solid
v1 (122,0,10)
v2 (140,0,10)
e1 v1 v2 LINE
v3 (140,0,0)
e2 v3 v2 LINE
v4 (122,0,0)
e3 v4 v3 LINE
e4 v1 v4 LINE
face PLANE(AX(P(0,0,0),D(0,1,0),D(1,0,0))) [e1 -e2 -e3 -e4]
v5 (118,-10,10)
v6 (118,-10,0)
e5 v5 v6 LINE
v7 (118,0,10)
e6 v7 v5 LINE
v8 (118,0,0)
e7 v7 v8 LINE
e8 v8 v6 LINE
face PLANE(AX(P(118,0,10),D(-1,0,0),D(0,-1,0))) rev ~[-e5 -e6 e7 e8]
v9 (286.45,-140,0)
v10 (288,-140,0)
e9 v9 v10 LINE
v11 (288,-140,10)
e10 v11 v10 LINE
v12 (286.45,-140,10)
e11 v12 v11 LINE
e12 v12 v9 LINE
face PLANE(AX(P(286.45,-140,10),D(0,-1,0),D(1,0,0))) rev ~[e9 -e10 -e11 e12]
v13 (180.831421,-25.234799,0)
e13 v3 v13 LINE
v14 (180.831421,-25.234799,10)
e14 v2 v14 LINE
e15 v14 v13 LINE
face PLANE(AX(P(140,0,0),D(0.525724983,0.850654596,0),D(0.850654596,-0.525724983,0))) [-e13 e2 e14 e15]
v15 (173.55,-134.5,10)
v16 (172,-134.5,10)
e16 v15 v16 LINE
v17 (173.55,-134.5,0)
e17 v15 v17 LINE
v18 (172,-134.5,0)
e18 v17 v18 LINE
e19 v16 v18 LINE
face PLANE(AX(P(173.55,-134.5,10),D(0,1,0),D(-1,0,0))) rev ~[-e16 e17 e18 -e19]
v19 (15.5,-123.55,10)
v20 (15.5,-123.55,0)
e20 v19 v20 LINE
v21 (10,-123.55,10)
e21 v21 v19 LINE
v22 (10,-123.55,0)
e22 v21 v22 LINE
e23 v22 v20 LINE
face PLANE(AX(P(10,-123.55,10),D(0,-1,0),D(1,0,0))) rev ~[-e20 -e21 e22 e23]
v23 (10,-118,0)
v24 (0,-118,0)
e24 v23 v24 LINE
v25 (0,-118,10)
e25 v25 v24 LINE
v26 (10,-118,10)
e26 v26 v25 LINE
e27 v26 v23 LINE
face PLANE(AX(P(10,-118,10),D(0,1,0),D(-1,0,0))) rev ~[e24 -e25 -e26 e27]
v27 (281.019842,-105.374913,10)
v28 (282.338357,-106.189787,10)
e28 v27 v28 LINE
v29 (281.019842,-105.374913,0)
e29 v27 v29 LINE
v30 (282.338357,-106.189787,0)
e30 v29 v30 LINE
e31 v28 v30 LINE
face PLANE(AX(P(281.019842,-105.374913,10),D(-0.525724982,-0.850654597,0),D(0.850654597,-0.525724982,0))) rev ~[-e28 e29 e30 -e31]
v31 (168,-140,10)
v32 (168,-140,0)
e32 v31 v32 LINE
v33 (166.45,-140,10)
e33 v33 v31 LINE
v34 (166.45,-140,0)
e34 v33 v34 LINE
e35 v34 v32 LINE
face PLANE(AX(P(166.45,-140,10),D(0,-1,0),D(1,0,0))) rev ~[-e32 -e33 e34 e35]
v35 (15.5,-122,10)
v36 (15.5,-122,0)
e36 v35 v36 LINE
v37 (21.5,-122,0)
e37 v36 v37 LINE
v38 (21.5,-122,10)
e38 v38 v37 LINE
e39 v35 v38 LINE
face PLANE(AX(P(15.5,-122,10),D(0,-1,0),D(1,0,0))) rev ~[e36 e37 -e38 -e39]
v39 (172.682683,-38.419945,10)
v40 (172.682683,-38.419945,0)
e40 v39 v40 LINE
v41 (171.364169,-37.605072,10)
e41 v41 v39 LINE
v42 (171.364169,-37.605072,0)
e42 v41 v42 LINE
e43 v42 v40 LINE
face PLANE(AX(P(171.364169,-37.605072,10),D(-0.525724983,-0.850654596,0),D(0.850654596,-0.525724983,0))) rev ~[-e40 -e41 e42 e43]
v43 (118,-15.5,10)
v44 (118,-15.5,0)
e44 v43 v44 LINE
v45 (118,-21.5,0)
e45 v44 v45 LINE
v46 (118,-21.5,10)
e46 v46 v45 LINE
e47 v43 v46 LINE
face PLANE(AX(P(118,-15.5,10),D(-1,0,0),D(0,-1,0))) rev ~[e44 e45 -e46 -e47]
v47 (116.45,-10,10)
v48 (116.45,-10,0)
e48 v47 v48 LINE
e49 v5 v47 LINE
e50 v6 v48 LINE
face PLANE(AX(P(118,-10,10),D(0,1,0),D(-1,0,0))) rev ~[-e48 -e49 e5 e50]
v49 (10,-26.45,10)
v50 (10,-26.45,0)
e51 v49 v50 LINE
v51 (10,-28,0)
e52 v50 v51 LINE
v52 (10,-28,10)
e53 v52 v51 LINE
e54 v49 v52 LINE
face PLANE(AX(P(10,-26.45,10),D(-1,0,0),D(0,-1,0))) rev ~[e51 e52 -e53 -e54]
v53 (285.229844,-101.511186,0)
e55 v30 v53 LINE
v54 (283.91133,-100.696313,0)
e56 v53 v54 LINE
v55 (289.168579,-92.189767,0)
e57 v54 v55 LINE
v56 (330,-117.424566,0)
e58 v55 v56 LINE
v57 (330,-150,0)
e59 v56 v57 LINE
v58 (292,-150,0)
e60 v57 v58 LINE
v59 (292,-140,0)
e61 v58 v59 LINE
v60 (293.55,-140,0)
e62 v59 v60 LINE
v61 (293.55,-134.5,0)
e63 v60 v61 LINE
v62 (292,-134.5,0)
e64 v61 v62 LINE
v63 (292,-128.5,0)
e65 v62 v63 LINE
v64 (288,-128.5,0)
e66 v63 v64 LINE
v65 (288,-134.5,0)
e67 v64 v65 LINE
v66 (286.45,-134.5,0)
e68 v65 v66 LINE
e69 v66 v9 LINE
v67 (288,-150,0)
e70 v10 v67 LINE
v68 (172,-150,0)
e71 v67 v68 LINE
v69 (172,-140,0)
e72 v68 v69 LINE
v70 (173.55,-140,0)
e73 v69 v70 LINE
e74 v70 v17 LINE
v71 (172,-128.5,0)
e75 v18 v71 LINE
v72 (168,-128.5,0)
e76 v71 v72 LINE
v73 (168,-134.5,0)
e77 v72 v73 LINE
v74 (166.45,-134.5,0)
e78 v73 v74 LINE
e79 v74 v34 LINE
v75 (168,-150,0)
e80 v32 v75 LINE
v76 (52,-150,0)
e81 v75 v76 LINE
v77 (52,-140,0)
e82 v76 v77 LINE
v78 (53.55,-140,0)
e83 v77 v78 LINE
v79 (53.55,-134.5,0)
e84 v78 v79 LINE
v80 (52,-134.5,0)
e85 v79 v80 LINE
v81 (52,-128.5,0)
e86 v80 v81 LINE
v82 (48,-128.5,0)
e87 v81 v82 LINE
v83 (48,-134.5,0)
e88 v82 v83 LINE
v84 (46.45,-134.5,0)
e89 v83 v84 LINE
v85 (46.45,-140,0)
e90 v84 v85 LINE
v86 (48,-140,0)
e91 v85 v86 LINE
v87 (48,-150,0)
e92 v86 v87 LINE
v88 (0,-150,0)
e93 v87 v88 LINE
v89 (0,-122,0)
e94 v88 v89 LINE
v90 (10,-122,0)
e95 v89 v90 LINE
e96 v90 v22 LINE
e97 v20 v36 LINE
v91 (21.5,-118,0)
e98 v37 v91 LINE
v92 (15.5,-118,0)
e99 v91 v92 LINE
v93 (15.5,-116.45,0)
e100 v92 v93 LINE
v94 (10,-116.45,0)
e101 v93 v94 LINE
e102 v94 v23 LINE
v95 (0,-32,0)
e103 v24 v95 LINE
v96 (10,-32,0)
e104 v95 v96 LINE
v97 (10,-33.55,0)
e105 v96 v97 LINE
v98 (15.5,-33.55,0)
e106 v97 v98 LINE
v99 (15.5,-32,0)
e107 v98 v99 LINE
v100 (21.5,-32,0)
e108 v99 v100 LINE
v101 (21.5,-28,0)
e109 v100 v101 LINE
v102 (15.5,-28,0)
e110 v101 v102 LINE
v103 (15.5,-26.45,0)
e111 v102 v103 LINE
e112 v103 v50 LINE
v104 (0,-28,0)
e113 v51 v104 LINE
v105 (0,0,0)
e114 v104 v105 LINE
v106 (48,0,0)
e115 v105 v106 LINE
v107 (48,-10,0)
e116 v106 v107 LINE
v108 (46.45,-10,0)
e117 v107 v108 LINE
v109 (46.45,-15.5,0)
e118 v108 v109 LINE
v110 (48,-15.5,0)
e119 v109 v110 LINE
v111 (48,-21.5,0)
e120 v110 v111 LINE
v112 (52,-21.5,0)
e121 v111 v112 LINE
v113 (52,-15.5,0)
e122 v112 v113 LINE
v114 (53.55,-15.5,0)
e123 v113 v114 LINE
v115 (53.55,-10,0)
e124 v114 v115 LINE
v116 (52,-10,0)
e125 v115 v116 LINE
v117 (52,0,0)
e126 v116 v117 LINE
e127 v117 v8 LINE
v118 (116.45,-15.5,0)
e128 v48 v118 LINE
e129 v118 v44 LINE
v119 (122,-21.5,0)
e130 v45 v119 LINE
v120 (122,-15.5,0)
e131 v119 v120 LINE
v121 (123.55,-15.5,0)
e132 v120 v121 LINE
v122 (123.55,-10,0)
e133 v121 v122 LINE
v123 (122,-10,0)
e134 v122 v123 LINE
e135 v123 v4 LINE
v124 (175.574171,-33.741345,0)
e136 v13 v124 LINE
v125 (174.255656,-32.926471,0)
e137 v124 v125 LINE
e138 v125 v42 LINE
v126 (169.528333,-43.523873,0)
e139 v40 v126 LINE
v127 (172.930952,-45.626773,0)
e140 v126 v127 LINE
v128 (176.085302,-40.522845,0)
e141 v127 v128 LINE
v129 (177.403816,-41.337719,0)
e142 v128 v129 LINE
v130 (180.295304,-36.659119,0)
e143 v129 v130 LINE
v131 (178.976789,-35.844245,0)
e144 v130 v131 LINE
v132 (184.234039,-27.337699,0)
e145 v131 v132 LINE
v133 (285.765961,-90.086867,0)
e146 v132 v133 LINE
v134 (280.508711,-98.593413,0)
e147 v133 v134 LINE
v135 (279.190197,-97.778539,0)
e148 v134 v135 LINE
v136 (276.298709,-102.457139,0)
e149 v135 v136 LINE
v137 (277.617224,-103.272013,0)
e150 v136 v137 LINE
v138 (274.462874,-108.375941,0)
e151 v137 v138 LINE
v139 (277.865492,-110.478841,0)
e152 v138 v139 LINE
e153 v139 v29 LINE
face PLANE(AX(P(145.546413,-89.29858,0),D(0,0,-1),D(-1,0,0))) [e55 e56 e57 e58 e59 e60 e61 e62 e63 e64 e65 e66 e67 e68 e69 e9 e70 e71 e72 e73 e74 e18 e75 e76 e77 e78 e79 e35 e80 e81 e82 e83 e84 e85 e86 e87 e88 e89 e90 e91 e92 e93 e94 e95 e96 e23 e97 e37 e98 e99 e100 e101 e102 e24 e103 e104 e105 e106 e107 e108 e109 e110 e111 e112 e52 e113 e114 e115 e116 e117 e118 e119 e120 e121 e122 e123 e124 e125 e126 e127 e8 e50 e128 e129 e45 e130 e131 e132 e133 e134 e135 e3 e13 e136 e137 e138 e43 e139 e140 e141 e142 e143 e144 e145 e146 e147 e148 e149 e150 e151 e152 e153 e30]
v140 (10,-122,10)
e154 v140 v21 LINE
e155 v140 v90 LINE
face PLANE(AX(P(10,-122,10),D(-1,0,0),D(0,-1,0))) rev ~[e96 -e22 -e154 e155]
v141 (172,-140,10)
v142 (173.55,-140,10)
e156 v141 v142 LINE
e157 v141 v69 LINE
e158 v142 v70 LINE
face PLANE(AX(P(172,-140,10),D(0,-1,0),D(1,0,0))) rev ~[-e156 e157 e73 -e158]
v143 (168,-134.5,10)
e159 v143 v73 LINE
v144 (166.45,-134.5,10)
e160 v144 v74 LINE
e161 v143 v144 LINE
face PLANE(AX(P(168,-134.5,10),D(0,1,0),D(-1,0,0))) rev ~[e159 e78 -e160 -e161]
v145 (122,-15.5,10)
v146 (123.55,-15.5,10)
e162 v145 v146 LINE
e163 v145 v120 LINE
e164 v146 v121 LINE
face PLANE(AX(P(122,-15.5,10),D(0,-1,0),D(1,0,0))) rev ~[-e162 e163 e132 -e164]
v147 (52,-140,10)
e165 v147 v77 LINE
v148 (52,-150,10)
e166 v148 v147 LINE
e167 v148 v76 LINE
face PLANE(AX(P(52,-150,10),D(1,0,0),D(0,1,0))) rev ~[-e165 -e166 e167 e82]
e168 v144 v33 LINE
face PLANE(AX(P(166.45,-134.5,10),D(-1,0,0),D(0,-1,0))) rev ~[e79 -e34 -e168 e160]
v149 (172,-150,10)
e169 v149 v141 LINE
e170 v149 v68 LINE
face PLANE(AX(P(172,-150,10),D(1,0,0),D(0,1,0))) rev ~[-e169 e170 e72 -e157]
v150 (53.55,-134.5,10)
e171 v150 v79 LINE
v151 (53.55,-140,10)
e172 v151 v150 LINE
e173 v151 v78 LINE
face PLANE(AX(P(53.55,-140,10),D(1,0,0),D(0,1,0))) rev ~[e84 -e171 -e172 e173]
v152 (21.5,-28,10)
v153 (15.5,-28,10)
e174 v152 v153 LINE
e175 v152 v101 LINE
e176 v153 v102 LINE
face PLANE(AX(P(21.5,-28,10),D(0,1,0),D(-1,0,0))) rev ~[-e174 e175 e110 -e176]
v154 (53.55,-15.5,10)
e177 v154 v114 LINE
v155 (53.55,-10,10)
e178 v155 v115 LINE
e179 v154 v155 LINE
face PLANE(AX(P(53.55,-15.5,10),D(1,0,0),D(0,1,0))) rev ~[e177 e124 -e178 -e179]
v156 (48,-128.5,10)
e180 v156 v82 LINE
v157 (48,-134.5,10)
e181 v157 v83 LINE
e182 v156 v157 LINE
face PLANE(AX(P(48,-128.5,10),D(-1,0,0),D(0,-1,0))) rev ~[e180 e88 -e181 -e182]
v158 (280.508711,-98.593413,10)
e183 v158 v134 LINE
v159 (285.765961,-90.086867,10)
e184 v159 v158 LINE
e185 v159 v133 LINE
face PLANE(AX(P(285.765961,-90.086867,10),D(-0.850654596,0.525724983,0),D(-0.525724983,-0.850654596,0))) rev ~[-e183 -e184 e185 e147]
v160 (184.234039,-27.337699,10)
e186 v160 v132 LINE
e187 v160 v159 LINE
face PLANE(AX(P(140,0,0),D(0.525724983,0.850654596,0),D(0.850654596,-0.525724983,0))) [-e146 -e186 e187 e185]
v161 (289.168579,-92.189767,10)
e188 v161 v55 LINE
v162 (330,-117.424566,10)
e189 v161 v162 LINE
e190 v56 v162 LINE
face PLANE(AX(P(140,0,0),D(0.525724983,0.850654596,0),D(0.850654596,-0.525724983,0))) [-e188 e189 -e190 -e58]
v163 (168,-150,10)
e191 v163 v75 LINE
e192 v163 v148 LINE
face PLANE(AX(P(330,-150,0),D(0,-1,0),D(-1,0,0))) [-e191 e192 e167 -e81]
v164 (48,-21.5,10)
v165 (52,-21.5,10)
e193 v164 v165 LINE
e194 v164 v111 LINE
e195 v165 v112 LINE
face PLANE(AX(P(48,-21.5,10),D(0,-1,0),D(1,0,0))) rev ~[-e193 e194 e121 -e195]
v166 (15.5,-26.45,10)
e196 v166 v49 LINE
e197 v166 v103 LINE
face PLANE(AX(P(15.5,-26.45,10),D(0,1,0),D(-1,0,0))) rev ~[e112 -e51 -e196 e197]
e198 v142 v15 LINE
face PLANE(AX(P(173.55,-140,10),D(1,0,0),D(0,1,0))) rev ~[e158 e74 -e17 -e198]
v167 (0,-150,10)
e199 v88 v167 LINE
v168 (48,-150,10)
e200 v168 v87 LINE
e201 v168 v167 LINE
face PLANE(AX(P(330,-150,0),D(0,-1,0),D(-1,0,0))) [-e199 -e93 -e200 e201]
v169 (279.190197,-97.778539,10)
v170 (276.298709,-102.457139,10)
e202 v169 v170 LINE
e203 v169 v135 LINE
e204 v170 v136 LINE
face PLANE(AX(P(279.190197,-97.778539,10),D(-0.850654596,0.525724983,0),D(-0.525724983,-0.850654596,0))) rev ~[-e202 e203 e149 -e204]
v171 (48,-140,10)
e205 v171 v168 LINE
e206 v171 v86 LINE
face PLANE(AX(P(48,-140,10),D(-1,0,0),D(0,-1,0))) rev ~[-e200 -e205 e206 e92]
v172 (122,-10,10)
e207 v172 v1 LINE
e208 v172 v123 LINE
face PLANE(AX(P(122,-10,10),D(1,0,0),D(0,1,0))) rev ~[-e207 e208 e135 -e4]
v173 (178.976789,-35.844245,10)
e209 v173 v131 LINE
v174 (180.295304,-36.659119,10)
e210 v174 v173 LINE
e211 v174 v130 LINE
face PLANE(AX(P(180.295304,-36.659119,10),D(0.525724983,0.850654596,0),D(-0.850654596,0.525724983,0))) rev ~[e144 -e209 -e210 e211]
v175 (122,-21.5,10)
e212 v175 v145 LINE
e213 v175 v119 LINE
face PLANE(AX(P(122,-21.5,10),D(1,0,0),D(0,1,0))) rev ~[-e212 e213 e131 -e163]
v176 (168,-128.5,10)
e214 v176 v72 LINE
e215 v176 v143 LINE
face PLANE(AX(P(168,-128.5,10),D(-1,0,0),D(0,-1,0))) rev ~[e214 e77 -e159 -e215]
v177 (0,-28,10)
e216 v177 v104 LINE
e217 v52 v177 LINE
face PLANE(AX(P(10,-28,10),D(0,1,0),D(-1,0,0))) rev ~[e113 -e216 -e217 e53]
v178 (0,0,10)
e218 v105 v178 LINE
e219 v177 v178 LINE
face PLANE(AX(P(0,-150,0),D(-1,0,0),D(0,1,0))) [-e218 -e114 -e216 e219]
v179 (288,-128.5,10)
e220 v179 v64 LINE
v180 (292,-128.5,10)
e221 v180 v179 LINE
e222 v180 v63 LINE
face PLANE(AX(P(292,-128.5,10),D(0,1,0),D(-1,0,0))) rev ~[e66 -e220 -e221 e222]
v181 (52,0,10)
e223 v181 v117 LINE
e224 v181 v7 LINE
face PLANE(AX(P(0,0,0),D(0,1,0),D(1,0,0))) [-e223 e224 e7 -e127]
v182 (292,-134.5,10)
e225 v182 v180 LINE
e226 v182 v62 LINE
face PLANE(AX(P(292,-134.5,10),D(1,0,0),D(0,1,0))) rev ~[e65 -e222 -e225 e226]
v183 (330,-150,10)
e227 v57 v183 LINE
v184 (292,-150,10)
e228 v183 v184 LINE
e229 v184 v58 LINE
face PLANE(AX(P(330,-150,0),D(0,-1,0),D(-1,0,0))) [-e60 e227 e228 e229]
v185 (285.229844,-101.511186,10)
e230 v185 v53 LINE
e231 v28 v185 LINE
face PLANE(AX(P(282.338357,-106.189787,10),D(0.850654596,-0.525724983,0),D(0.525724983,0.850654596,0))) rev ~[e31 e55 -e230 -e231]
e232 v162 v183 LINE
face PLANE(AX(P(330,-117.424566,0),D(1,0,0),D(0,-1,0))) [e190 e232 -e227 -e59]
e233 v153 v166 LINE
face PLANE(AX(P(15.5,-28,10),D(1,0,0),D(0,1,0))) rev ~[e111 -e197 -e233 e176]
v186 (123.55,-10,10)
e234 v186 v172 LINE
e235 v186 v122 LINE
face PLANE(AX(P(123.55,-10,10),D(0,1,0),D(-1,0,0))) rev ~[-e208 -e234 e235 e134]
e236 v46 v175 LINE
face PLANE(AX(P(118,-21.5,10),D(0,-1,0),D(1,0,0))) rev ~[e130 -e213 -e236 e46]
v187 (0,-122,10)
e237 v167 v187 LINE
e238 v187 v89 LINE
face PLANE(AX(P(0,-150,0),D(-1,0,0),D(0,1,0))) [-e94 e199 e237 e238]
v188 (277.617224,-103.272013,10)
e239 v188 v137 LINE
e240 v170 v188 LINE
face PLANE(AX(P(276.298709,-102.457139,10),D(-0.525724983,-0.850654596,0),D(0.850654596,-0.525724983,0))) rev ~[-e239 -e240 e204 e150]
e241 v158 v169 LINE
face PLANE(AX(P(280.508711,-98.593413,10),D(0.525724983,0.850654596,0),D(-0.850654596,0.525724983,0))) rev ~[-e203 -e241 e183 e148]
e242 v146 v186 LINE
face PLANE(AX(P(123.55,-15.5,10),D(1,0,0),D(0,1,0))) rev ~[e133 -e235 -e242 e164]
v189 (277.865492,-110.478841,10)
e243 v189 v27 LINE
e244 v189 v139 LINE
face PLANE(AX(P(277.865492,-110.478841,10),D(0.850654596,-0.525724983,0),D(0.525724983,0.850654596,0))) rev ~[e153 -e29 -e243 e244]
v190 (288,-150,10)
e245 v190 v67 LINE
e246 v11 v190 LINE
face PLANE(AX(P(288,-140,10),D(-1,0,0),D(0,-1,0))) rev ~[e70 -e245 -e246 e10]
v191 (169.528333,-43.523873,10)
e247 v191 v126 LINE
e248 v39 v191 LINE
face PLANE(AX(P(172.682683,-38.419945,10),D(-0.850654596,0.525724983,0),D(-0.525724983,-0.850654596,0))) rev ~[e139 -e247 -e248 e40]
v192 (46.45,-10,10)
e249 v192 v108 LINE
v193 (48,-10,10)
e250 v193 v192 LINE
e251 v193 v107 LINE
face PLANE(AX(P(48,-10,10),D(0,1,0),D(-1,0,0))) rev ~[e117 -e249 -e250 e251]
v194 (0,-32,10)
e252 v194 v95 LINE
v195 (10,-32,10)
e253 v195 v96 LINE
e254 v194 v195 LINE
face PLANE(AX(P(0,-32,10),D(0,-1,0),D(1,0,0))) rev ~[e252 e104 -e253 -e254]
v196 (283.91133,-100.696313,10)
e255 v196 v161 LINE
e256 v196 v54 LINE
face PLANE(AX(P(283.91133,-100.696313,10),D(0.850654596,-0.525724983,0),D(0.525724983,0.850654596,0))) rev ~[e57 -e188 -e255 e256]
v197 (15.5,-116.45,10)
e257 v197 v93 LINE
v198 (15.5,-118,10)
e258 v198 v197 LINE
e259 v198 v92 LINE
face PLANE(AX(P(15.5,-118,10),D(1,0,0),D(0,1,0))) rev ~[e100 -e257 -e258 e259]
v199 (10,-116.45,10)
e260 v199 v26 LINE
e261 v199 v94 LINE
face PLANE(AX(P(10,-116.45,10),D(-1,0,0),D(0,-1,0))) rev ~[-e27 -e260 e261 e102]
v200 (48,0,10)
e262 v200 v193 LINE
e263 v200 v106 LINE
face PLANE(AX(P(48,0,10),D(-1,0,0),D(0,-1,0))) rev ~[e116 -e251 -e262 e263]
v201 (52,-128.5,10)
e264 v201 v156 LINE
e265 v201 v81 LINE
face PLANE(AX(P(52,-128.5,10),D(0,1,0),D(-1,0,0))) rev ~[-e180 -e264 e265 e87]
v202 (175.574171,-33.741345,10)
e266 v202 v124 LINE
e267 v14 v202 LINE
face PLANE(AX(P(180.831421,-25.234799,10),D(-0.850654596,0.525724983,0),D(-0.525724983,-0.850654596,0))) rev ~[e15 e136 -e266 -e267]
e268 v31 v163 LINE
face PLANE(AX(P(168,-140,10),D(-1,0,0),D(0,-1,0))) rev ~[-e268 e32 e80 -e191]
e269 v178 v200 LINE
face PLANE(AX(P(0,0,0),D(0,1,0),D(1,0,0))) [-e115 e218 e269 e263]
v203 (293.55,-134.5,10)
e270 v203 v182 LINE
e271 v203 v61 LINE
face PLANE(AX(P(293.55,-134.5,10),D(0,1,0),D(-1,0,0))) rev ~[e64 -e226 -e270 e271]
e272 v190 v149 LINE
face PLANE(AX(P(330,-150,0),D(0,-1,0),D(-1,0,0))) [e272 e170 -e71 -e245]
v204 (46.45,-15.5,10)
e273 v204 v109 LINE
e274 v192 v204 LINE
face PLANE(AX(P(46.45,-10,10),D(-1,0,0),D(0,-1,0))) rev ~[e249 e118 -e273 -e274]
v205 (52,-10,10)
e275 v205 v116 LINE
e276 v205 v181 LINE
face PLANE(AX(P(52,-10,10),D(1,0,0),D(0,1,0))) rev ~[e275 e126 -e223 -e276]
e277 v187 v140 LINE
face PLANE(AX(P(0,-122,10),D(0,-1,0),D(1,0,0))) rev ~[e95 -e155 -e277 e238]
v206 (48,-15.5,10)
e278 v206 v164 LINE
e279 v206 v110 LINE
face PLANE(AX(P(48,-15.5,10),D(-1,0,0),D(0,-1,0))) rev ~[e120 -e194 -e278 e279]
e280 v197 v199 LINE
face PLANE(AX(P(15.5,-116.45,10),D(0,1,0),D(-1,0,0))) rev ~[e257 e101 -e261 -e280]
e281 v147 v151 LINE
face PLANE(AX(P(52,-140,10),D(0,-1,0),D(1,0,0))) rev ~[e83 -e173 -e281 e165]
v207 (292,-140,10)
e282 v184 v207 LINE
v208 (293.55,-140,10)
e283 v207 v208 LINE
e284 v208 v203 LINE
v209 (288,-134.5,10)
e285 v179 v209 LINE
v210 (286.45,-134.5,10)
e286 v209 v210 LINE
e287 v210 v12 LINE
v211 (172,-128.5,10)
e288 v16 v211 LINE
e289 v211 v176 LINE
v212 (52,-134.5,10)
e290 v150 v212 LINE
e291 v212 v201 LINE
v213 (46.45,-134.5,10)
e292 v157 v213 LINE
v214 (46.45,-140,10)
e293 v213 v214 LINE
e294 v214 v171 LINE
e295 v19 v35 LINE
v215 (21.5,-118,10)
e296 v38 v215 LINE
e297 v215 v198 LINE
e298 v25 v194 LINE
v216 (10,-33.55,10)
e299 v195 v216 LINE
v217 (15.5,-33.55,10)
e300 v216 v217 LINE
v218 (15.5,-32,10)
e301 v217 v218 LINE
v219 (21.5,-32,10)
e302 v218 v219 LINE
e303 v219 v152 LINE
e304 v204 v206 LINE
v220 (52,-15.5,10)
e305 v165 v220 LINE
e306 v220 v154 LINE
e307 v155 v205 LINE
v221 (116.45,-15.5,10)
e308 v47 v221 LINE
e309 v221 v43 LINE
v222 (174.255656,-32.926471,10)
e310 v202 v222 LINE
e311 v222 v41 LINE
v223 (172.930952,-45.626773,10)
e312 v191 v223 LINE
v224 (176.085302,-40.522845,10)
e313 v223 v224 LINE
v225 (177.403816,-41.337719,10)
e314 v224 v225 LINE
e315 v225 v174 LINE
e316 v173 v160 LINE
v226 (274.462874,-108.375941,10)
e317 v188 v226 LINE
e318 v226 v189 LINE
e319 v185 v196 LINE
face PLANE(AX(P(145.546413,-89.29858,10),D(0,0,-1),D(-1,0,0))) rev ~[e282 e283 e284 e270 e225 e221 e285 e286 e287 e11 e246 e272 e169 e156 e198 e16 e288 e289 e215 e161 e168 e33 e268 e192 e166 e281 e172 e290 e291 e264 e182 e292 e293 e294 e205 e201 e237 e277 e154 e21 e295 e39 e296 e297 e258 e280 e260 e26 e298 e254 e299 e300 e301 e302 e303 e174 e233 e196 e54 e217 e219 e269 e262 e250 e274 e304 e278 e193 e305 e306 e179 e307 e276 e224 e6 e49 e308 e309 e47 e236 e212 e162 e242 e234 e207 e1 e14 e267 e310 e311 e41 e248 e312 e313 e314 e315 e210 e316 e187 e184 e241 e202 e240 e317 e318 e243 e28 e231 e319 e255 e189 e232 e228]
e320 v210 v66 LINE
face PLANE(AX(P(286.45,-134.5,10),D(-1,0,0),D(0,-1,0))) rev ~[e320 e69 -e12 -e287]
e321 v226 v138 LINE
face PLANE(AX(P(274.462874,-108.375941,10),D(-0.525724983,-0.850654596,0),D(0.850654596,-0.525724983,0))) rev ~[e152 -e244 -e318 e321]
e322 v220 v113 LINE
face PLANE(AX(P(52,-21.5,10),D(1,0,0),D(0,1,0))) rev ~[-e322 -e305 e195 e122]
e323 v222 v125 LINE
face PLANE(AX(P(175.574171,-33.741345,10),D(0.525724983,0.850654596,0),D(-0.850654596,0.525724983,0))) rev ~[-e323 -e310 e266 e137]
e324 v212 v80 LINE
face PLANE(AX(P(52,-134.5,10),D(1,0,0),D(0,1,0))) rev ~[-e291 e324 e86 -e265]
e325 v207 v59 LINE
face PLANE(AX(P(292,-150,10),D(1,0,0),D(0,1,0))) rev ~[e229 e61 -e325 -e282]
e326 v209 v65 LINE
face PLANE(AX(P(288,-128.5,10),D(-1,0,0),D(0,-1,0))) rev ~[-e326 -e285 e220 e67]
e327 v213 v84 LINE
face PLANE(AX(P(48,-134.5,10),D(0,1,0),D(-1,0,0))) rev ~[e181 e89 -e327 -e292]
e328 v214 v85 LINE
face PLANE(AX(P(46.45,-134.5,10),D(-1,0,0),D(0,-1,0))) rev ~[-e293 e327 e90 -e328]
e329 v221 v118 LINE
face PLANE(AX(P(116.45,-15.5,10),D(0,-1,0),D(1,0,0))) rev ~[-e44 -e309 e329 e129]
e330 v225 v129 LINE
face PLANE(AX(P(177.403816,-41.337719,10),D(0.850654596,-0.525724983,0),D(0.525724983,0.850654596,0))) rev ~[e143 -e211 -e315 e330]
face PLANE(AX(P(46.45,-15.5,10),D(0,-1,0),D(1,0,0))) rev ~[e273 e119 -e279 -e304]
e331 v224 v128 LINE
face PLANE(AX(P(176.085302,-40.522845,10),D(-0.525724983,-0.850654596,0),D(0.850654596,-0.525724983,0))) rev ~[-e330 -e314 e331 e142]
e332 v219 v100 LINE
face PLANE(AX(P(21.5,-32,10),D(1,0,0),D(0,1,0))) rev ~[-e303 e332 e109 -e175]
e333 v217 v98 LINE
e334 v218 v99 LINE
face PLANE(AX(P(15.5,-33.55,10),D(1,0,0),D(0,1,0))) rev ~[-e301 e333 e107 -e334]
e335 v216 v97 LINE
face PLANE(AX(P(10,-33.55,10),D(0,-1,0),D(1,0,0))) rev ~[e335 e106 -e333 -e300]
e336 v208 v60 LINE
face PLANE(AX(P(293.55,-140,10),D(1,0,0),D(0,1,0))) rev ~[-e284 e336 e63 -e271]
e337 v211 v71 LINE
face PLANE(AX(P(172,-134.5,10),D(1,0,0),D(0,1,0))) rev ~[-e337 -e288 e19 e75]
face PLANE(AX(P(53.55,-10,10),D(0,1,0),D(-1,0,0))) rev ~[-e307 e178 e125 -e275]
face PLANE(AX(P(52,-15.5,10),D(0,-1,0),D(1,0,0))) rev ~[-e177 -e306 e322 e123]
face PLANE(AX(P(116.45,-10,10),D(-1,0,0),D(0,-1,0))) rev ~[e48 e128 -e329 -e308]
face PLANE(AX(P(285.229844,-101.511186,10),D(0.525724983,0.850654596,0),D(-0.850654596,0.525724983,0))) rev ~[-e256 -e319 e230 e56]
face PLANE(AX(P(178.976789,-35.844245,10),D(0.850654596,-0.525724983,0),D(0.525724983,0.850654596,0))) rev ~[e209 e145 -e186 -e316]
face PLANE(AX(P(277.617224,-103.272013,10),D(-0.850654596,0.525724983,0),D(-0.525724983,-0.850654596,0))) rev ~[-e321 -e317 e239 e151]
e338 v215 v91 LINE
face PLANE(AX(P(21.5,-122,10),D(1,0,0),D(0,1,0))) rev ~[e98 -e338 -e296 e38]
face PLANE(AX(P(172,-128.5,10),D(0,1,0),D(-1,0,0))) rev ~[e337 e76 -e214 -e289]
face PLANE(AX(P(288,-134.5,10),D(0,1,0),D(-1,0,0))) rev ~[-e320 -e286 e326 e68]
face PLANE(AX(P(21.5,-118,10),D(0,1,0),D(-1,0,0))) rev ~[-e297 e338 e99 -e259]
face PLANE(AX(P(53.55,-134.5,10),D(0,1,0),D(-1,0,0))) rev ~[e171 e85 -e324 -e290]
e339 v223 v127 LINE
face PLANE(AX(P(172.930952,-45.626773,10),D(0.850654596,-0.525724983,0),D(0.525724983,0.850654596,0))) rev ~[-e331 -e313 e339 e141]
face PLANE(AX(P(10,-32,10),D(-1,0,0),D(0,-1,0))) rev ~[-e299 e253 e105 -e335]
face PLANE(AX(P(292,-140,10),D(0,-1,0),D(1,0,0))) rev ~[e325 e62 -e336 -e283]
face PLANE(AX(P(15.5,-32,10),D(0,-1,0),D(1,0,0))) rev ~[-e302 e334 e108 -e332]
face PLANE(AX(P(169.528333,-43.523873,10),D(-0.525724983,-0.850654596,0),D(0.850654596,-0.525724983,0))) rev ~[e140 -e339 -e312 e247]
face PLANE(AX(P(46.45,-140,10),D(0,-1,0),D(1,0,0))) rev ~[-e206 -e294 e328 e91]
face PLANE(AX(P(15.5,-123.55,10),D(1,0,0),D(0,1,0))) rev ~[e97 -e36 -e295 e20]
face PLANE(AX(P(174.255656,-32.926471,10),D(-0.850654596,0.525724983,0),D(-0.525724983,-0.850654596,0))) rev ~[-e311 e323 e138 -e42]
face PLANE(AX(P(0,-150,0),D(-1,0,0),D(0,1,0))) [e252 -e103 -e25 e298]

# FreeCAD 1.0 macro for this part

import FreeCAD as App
import Part
import Sketcher
from FreeCAD import Vector

doc = App.newDocument("Part")
body = doc.addObject("PartDesign::Body", "Body")

sketch1 = body.newObject("Sketcher::SketchObject", "Sketch")
sketch1.AttachmentSupport = (doc.getObject("XY_Plane"), [""])
sketch1.MapMode = "FlatFace"
sketch1.addGeometry([
    Part.LineSegment(Vector(140, 0, 0), Vector(0, 0, 0)),
    Part.LineSegment(Vector(0, 0, 0), Vector(0, -150, 0)),
    Part.LineSegment(Vector(0, -150, 0), Vector(330, -150, 0)),
    Part.LineSegment(Vector(330, -150, 0), Vector(330, -117.424566, 0)),
    Part.LineSegment(Vector(330, -117.424566, 0), Vector(140, 0, 0)),
], False)
sketch1.addConstraint([
    Sketcher.Constraint("Coincident", 0, 2, 1, 1),
    Sketcher.Constraint("Coincident", 1, 2, 2, 1),
    Sketcher.Constraint("Coincident", 2, 2, 3, 1),
    Sketcher.Constraint("Coincident", 3, 2, 4, 1),
    Sketcher.Constraint("Coincident", 4, 2, 0, 1),
    Sketcher.Constraint("Horizontal", 0),
    Sketcher.Constraint("Vertical", 1),
    Sketcher.Constraint("Horizontal", 2),
    Sketcher.Constraint("Vertical", 3),
    Sketcher.Constraint("Coincident", 0, 2, -1, 1),
    Sketcher.Constraint("DistanceX", 0, 2, 0, 1, 140.0),
    Sketcher.Constraint("DistanceX", 2, 1, 2, 2, 330.0),
    Sketcher.Constraint("DistanceY", 1, 2, 1, 1, 150.0),
    Sketcher.Constraint("Distance", 4, 223.357401),
])
pad1 = body.newObject("PartDesign::Pad", "Pad")
pad1.Profile = sketch1
pad1.Length = 10

sketch2 = body.newObject("Sketcher::SketchObject", "Sketch001")
sketch2.AttachmentSupport = (doc.getObject("XY_Plane"), [""])
sketch2.MapMode = "FlatFace"
sketch2.AttachmentOffset = App.Placement(Vector(0, 0, 10), App.Rotation())
sketch2.addGeometry([
    Part.LineSegment(Vector(48, -140, 0), Vector(48, -150, 0)),
    Part.LineSegment(Vector(48, -150, 0), Vector(52, -150, 0)),
    Part.LineSegment(Vector(52, -150, 0), Vector(52, -140, 0)),
    Part.LineSegment(Vector(52, -140, 0), Vector(53.55, -140, 0)),
    Part.LineSegment(Vector(53.55, -140, 0), Vector(53.55, -134.5, 0)),
    Part.LineSegment(Vector(53.55, -134.5, 0), Vector(52, -134.5, 0)),
    Part.LineSegment(Vector(52, -134.5, 0), Vector(52, -128.5, 0)),
    Part.LineSegment(Vector(52, -128.5, 0), Vector(48, -128.5, 0)),
    Part.LineSegment(Vector(48, -128.5, 0), Vector(48, -134.5, 0)),
    Part.LineSegment(Vector(48, -134.5, 0), Vector(46.45, -134.5, 0)),
    Part.LineSegment(Vector(46.45, -134.5, 0), Vector(46.45, -140, 0)),
    Part.LineSegment(Vector(46.45, -140, 0), Vector(48, -140, 0)),
    Part.LineSegment(Vector(168, -140, 0), Vector(168, -150, 0)),
    Part.LineSegment(Vector(168, -150, 0), Vector(172, -150, 0)),
    Part.LineSegment(Vector(172, -150, 0), Vector(172, -140, 0)),
    Part.LineSegment(Vector(172, -140, 0), Vector(173.55, -140, 0)),
    Part.LineSegment(Vector(173.55, -140, 0), Vector(173.55, -134.5, 0)),
    Part.LineSegment(Vector(173.55, -134.5, 0), Vector(172, -134.5, 0)),
    Part.LineSegment(Vector(172, -134.5, 0), Vector(172, -128.5, 0)),
    Part.LineSegment(Vector(172, -128.5, 0), Vector(168, -128.5, 0)),
    Part.LineSegment(Vector(168, -128.5, 0), Vector(168, -134.5, 0)),
    Part.LineSegment(Vector(168, -134.5, 0), Vector(166.45, -134.5, 0)),
    Part.LineSegment(Vector(166.45, -134.5, 0), Vector(166.45, -140, 0)),
    Part.LineSegment(Vector(166.45, -140, 0), Vector(168, -140, 0)),
    Part.LineSegment(Vector(288, -140, 0), Vector(288, -150, 0)),
    Part.LineSegment(Vector(288, -150, 0), Vector(292, -150, 0)),
    Part.LineSegment(Vector(292, -150, 0), Vector(292, -140, 0)),
    Part.LineSegment(Vector(292, -140, 0), Vector(293.55, -140, 0)),
    Part.LineSegment(Vector(293.55, -140, 0), Vector(293.55, -134.5, 0)),
    Part.LineSegment(Vector(293.55, -134.5, 0), Vector(292, -134.5, 0)),
    Part.LineSegment(Vector(292, -134.5, 0), Vector(292, -128.5, 0)),
    Part.LineSegment(Vector(292, -128.5, 0), Vector(288, -128.5, 0)),
    Part.LineSegment(Vector(288, -128.5, 0), Vector(288, -134.5, 0)),
    Part.LineSegment(Vector(288, -134.5, 0), Vector(286.45, -134.5, 0)),
    Part.LineSegment(Vector(286.45, -134.5, 0), Vector(286.45, -140, 0)),
    Part.LineSegment(Vector(286.45, -140, 0), Vector(288, -140, 0)),
    Part.LineSegment(Vector(10, -28, 0), Vector(0, -28, 0)),
    Part.LineSegment(Vector(0, -28, 0), Vector(0, -32, 0)),
    Part.LineSegment(Vector(0, -32, 0), Vector(10, -32, 0)),
    Part.LineSegment(Vector(10, -32, 0), Vector(10, -33.55, 0)),
    Part.LineSegment(Vector(10, -33.55, 0), Vector(15.5, -33.55, 0)),
    Part.LineSegment(Vector(15.5, -33.55, 0), Vector(15.5, -32, 0)),
    Part.LineSegment(Vector(15.5, -32, 0), Vector(21.5, -32, 0)),
    Part.LineSegment(Vector(21.5, -32, 0), Vector(21.5, -28, 0)),
    Part.LineSegment(Vector(21.5, -28, 0), Vector(15.5, -28, 0)),
    Part.LineSegment(Vector(15.5, -28, 0), Vector(15.5, -26.45, 0)),
    Part.LineSegment(Vector(15.5, -26.45, 0), Vector(10, -26.45, 0)),
    Part.LineSegment(Vector(10, -26.45, 0), Vector(10, -28, 0)),
    Part.LineSegment(Vector(10, -118, 0), Vector(0, -118, 0)),
    Part.LineSegment(Vector(0, -118, 0), Vector(0, -122, 0)),
    Part.LineSegment(Vector(0, -122, 0), Vector(10, -122, 0)),
    Part.LineSegment(Vector(10, -122, 0), Vector(10, -123.55, 0)),
    Part.LineSegment(Vector(10, -123.55, 0), Vector(15.5, -123.55, 0)),
    Part.LineSegment(Vector(15.5, -123.55, 0), Vector(15.5, -122, 0)),
    Part.LineSegment(Vector(15.5, -122, 0), Vector(21.5, -122, 0)),
    Part.LineSegment(Vector(21.5, -122, 0), Vector(21.5, -118, 0)),
    Part.LineSegment(Vector(21.5, -118, 0), Vector(15.5, -118, 0)),
    Part.LineSegment(Vector(15.5, -118, 0), Vector(15.5, -116.45, 0)),
    Part.LineSegment(Vector(15.5, -116.45, 0), Vector(10, -116.45, 0)),
    Part.LineSegment(Vector(10, -116.45, 0), Vector(10, -118, 0)),
], False)
sketch2.addConstraint([
    Sketcher.Constraint("Coincident", 0, 2, 1, 1),
    Sketcher.Constraint("Coincident", 1, 2, 2, 1),
    Sketcher.Constraint("Coincident", 2, 2, 3, 1),
    Sketcher.Constraint("Coincident", 3, 2, 4, 1),
    Sketcher.Constraint("Coincident", 4, 2, 5, 1),
    Sketcher.Constraint("Coincident", 5, 2, 6, 1),
    Sketcher.Constraint("Coincident", 6, 2, 7, 1),
    Sketcher.Constraint("Coincident", 7, 2, 8, 1),
    Sketcher.Constraint("Coincident", 8, 2, 9, 1),
    Sketcher.Constraint("Coincident", 9, 2, 10, 1),
    Sketcher.Constraint("Coincident", 10, 2, 11, 1),
    Sketcher.Constraint("Coincident", 11, 2, 0, 1),
    Sketcher.Constraint("Coincident", 12, 2, 13, 1),
    Sketcher.Constraint("Coincident", 13, 2, 14, 1),
    Sketcher.Constraint("Coincident", 14, 2, 15, 1),
    Sketcher.Constraint("Coincident", 15, 2, 16, 1),
    Sketcher.Constraint("Coincident", 16, 2, 17, 1),
    Sketcher.Constraint("Coincident", 17, 2, 18, 1),
    Sketcher.Constraint("Coincident", 18, 2, 19, 1),
    Sketcher.Constraint("Coincident", 19, 2, 20, 1),
    Sketcher.Constraint("Coincident", 20, 2, 21, 1),
    Sketcher.Constraint("Coincident", 21, 2, 22, 1),
    Sketcher.Constraint("Coincident", 22, 2, 23, 1),
    Sketcher.Constraint("Coincident", 23, 2, 12, 1),
    Sketcher.Constraint("Coincident", 24, 2, 25, 1),
    Sketcher.Constraint("Coincident", 25, 2, 26, 1),
    Sketcher.Constraint("Coincident", 26, 2, 27, 1),
    Sketcher.Constraint("Coincident", 27, 2, 28, 1),
    Sketcher.Constraint("Coincident", 28, 2, 29, 1),
    Sketcher.Constraint("Coincident", 29, 2, 30, 1),
    Sketcher.Constraint("Coincident", 30, 2, 31, 1),
    Sketcher.Constraint("Coincident", 31, 2, 32, 1),
    Sketcher.Constraint("Coincident", 32, 2, 33, 1),
    Sketcher.Constraint("Coincident", 33, 2, 34, 1),
    Sketcher.Constraint("Coincident", 34, 2, 35, 1),
    Sketcher.Constraint("Coincident", 35, 2, 24, 1),
    Sketcher.Constraint("Coincident", 36, 2, 37, 1),
    Sketcher.Constraint("Coincident", 37, 2, 38, 1),
    Sketcher.Constraint("Coincident", 38, 2, 39, 1),
    Sketcher.Constraint("Coincident", 39, 2, 40, 1),
    Sketcher.Constraint("Coincident", 40, 2, 41, 1),
    Sketcher.Constraint("Coincident", 41, 2, 42, 1),
    Sketcher.Constraint("Coincident", 42, 2, 43, 1),
    Sketcher.Constraint("Coincident", 43, 2, 44, 1),
    Sketcher.Constraint("Coincident", 44, 2, 45, 1),
    Sketcher.Constraint("Coincident", 45, 2, 46, 1),
    Sketcher.Constraint("Coincident", 46, 2, 47, 1),
    Sketcher.Constraint("Coincident", 47, 2, 36, 1),
    Sketcher.Constraint("Coincident", 48, 2, 49, 1),
    Sketcher.Constraint("Coincident", 49, 2, 50, 1),
    Sketcher.Constraint("Coincident", 50, 2, 51, 1),
    Sketcher.Constraint("Coincident", 51, 2, 52, 1),
    Sketcher.Constraint("Coincident", 52, 2, 53, 1),
    Sketcher.Constraint("Coincident", 53, 2, 54, 1),
    Sketcher.Constraint("Coincident", 54, 2, 55, 1),
    Sketcher.Constraint("Coincident", 55, 2, 56, 1),
    Sketcher.Constraint("Coincident", 56, 2, 57, 1),
    Sketcher.Constraint("Coincident", 57, 2, 58, 1),
    Sketcher.Constraint("Coincident", 58, 2, 59, 1),
    Sketcher.Constraint("Coincident", 59, 2, 48, 1),
    Sketcher.Constraint("Vertical", 0),
    Sketcher.Constraint("Horizontal", 1),
    Sketcher.Constraint("Vertical", 2),
    Sketcher.Constraint("Horizontal", 3),
    Sketcher.Constraint("Vertical", 4),
    Sketcher.Constraint("Horizontal", 5),
    Sketcher.Constraint("Vertical", 6),
    Sketcher.Constraint("Horizontal", 7),
    Sketcher.Constraint("Vertical", 8),
    Sketcher.Constraint("Horizontal", 9),
    Sketcher.Constraint("Vertical", 10),
    Sketcher.Constraint("Horizontal", 11),
    Sketcher.Constraint("Vertical", 12),
    Sketcher.Constraint("Horizontal", 13),
    Sketcher.Constraint("Vertical", 14),
    Sketcher.Constraint("Horizontal", 15),
    Sketcher.Constraint("Vertical", 16),
    Sketcher.Constraint("Horizontal", 17),
    Sketcher.Constraint("Vertical", 18),
    Sketcher.Constraint("Horizontal", 19),
    Sketcher.Constraint("Vertical", 20),
    Sketcher.Constraint("Horizontal", 21),
    Sketcher.Constraint("Vertical", 22),
    Sketcher.Constraint("Horizontal", 23),
    Sketcher.Constraint("Vertical", 24),
    Sketcher.Constraint("Horizontal", 25),
    Sketcher.Constraint("Vertical", 26),
    Sketcher.Constraint("Horizontal", 27),
    Sketcher.Constraint("Vertical", 28),
    Sketcher.Constraint("Horizontal", 29),
    Sketcher.Constraint("Vertical", 30),
    Sketcher.Constraint("Horizontal", 31),
    Sketcher.Constraint("Vertical", 32),
    Sketcher.Constraint("Horizontal", 33),
    Sketcher.Constraint("Vertical", 34),
    Sketcher.Constraint("Horizontal", 35),
    Sketcher.Constraint("Horizontal", 36),
    Sketcher.Constraint("Vertical", 37),
    Sketcher.Constraint("Horizontal", 38),
    Sketcher.Constraint("Vertical", 39),
    Sketcher.Constraint("Horizontal", 40),
    Sketcher.Constraint("Vertical", 41),
    Sketcher.Constraint("Horizontal", 42),
    Sketcher.Constraint("Vertical", 43),
    Sketcher.Constraint("Horizontal", 44),
    Sketcher.Constraint("Vertical", 45),
    Sketcher.Constraint("Horizontal", 46),
    Sketcher.Constraint("Vertical", 47),
    Sketcher.Constraint("Horizontal", 48),
    Sketcher.Constraint("Vertical", 49),
    Sketcher.Constraint("Horizontal", 50),
    Sketcher.Constraint("Vertical", 51),
    Sketcher.Constraint("Horizontal", 52),
    Sketcher.Constraint("Vertical", 53),
    Sketcher.Constraint("Horizontal", 54),
    Sketcher.Constraint("Vertical", 55),
    Sketcher.Constraint("Horizontal", 56),
    Sketcher.Constraint("Vertical", 57),
    Sketcher.Constraint("Horizontal", 58),
    Sketcher.Constraint("Vertical", 59),
    Sketcher.Constraint("PointOnObject", 36, 2, -2),
    Sketcher.Constraint("PointOnObject", 48, 2, -2),
    Sketcher.Constraint("Horizontal", 5, 2, 8, 2),
    Sketcher.Constraint("Horizontal", 3, 2, 10, 2),
    Sketcher.Constraint("Horizontal", 1, 2, 12, 2),
    Sketcher.Constraint("Horizontal", 11, 2, 14, 2),
    Sketcher.Constraint("Horizontal", 9, 2, 16, 2),
    Sketcher.Constraint("Horizontal", 7, 2, 18, 2),
    Sketcher.Constraint("Horizontal", 17, 2, 20, 2),
    Sketcher.Constraint("Horizontal", 15, 2, 22, 2),
    Sketcher.Constraint("Horizontal", 13, 2, 24, 2),
    Sketcher.Constraint("Horizontal", 23, 2, 26, 2),
    Sketcher.Constraint("Horizontal", 21, 2, 28, 2),
    Sketcher.Constraint("Horizontal", 19, 2, 30, 2),
    Sketcher.Constraint("Horizontal", 29, 2, 32, 2),
    Sketcher.Constraint("Horizontal", 27, 2, 34, 2),
    Sketcher.Constraint("Horizontal", 38, 2, 41, 2),
    Sketcher.Constraint("Horizontal", 36, 2, 43, 2),
    Sketcher.Constraint("Horizontal", 50, 2, 53, 2),
    Sketcher.Constraint("Horizontal", 48, 2, 55, 2),
    Sketcher.Constraint("Vertical", 2, 2, 5, 2),
    Sketcher.Constraint("Vertical", 0, 2, 7, 2),
    Sketcher.Constraint("Vertical", 14, 2, 17, 2),
    Sketcher.Constraint("Vertical", 12, 2, 19, 2),
    Sketcher.Constraint("Vertical", 26, 2, 29, 2),
    Sketcher.Constraint("Vertical", 24, 2, 31, 2),
    Sketcher.Constraint("Vertical", 41, 2, 44, 2),
    Sketcher.Constraint("Vertical", 39, 2, 46, 2),
    Sketcher.Constraint("Vertical", 47, 2, 50, 2),
    Sketcher.Constraint("Vertical", 45, 2, 52, 2),
    Sketcher.Constraint("Vertical", 43, 2, 54, 2),
    Sketcher.Constraint("Vertical", 53, 2, 56, 2),
    Sketcher.Constraint("Vertical", 51, 2, 58, 2),
    Sketcher.Constraint("Equal", 5, 9),
    Sketcher.Constraint("Equal", 7, 13),
    Sketcher.Constraint("Equal", 11, 15),
    Sketcher.Constraint("Equal", 17, 21),
    Sketcher.Constraint("Equal", 19, 25),
    Sketcher.Constraint("Equal", 23, 27),
    Sketcher.Constraint("Equal", 29, 33),
    Sketcher.Constraint("Equal", 50, 0),
    Sketcher.Constraint("Equal", 58, 4),
    Sketcher.Constraint("Equal", 56, 6),
    Sketcher.Constraint("Equal", 31, 37),
    Sketcher.Constraint("Equal", 35, 39),
    Sketcher.Constraint("Equal", 41, 45),
    Sketcher.Constraint("Equal", 43, 49),
    Sketcher.Constraint("Equal", 47, 51),
    Sketcher.Constraint("Equal", 53, 57),
    Sketcher.Constraint("DistanceX", 1, 1, 1, 2, 4.0),
    Sketcher.Constraint("DistanceX", 36, 2, 36, 1, 10.0),
    Sketcher.Constraint("DistanceX", 42, 1, 42, 2, 6.0),
    Sketcher.Constraint("DistanceX", 40, 1, 40, 2, 5.5),
    Sketcher.Constraint("DistanceX", -1, 1, 0, 2, 48.0),
    Sketcher.Constraint("DistanceY", 0, 2, -1, 1, 150.0),
    Sketcher.Constraint("DistanceX", -1, 1, 12, 2, 168.0),
    Sketcher.Constraint("DistanceX", -1, 1, 24, 2, 288.0),
    Sketcher.Constraint("DistanceY", 36, 2, -1, 1, 28.0),
    Sketcher.Constraint("DistanceY", 48, 2, -1, 1, 118.0),
    Sketcher.Constraint("DistanceX", 3, 1, 3, 2, 1.55),
])
pocket1 = body.newObject("PartDesign::Pocket", "Pocket")
pocket1.Profile = sketch2
pocket1.Length = 10

sketch3 = body.newObject("Sketcher::SketchObject", "Sketch002")
sketch3.AttachmentSupport = (doc.getObject("XY_Plane"), [""])
sketch3.MapMode = "FlatFace"
sketch3.AttachmentOffset = App.Placement(Vector(0, 0, 10), App.Rotation())
sketch3.addGeometry([
    Part.LineSegment(Vector(48, 0, 0), Vector(48, -10, 0)),
    Part.LineSegment(Vector(48, -10, 0), Vector(46.45, -10, 0)),
    Part.LineSegment(Vector(46.45, -10, 0), Vector(46.45, -15.5, 0)),
    Part.LineSegment(Vector(46.45, -15.5, 0), Vector(48, -15.5, 0)),
    Part.LineSegment(Vector(48, -15.5, 0), Vector(48, -21.5, 0)),
    Part.LineSegment(Vector(48, -21.5, 0), Vector(52, -21.5, 0)),
    Part.LineSegment(Vector(52, -21.5, 0), Vector(52, -15.5, 0)),
    Part.LineSegment(Vector(52, -15.5, 0), Vector(53.55, -15.5, 0)),
    Part.LineSegment(Vector(53.55, -15.5, 0), Vector(53.55, -10, 0)),
    Part.LineSegment(Vector(53.55, -10, 0), Vector(52, -10, 0)),
    Part.LineSegment(Vector(52, -10, 0), Vector(52, 0, 0)),
    Part.LineSegment(Vector(52, 0, 0), Vector(48, 0, 0)),
    Part.LineSegment(Vector(118, 0, 0), Vector(118, -10, 0)),
    Part.LineSegment(Vector(118, -10, 0), Vector(116.45, -10, 0)),
    Part.LineSegment(Vector(116.45, -10, 0), Vector(116.45, -15.5, 0)),
    Part.LineSegment(Vector(116.45, -15.5, 0), Vector(118, -15.5, 0)),
    Part.LineSegment(Vector(118, -15.5, 0), Vector(118, -21.5, 0)),
    Part.LineSegment(Vector(118, -21.5, 0), Vector(122, -21.5, 0)),
    Part.LineSegment(Vector(122, -21.5, 0), Vector(122, -15.5, 0)),
    Part.LineSegment(Vector(122, -15.5, 0), Vector(123.55, -15.5, 0)),
    Part.LineSegment(Vector(123.55, -15.5, 0), Vector(123.55, -10, 0)),
    Part.LineSegment(Vector(123.55, -10, 0), Vector(122, -10, 0)),
    Part.LineSegment(Vector(122, -10, 0), Vector(122, 0, 0)),
    Part.LineSegment(Vector(122, 0, 0), Vector(118, 0, 0)),
], False)
sketch3.addConstraint([
    Sketcher.Constraint("Coincident", 0, 2, 1, 1),
    Sketcher.Constraint("Coincident", 1, 2, 2, 1),
    Sketcher.Constraint("Coincident", 2, 2, 3, 1),
    Sketcher.Constraint("Coincident", 3, 2, 4, 1),
    Sketcher.Constraint("Coincident", 4, 2, 5, 1),
    Sketcher.Constraint("Coincident", 5, 2, 6, 1),
    Sketcher.Constraint("Coincident", 6, 2, 7, 1),
    Sketcher.Constraint("Coincident", 7, 2, 8, 1),
    Sketcher.Constraint("Coincident", 8, 2, 9, 1),
    Sketcher.Constraint("Coincident", 9, 2, 10, 1),
    Sketcher.Constraint("Coincident", 10, 2, 11, 1),
    Sketcher.Constraint("Coincident", 11, 2, 0, 1),
    Sketcher.Constraint("Coincident", 12, 2, 13, 1),
    Sketcher.Constraint("Coincident", 13, 2, 14, 1),
    Sketcher.Constraint("Coincident", 14, 2, 15, 1),
    Sketcher.Constraint("Coincident", 15, 2, 16, 1),
    Sketcher.Constraint("Coincident", 16, 2, 17, 1),
    Sketcher.Constraint("Coincident", 17, 2, 18, 1),
    Sketcher.Constraint("Coincident", 18, 2, 19, 1),
    Sketcher.Constraint("Coincident", 19, 2, 20, 1),
    Sketcher.Constraint("Coincident", 20, 2, 21, 1),
    Sketcher.Constraint("Coincident", 21, 2, 22, 1),
    Sketcher.Constraint("Coincident", 22, 2, 23, 1),
    Sketcher.Constraint("Coincident", 23, 2, 12, 1),
    Sketcher.Constraint("Vertical", 0),
    Sketcher.Constraint("Horizontal", 1),
    Sketcher.Constraint("Vertical", 2),
    Sketcher.Constraint("Horizontal", 3),
    Sketcher.Constraint("Vertical", 4),
    Sketcher.Constraint("Horizontal", 5),
    Sketcher.Constraint("Vertical", 6),
    Sketcher.Constraint("Horizontal", 7),
    Sketcher.Constraint("Vertical", 8),
    Sketcher.Constraint("Horizontal", 9),
    Sketcher.Constraint("Vertical", 10),
    Sketcher.Constraint("Horizontal", 11),
    Sketcher.Constraint("Vertical", 12),
    Sketcher.Constraint("Horizontal", 13),
    Sketcher.Constraint("Vertical", 14),
    Sketcher.Constraint("Horizontal", 15),
    Sketcher.Constraint("Vertical", 16),
    Sketcher.Constraint("Horizontal", 17),
    Sketcher.Constraint("Vertical", 18),
    Sketcher.Constraint("Horizontal", 19),
    Sketcher.Constraint("Vertical", 20),
    Sketcher.Constraint("Horizontal", 21),
    Sketcher.Constraint("Vertical", 22),
    Sketcher.Constraint("Horizontal", 23),
    Sketcher.Constraint("PointOnObject", 10, 2, -1),
    Sketcher.Constraint("PointOnObject", 22, 2, -1),
    Sketcher.Constraint("Horizontal", 3, 2, 6, 2),
    Sketcher.Constraint("Horizontal", 1, 2, 8, 2),
    Sketcher.Constraint("Horizontal", 9, 2, 12, 2),
    Sketcher.Constraint("Horizontal", 7, 2, 14, 2),
    Sketcher.Constraint("Horizontal", 5, 2, 16, 2),
    Sketcher.Constraint("Horizontal", 15, 2, 18, 2),
    Sketcher.Constraint("Horizontal", 13, 2, 20, 2),
    Sketcher.Constraint("Vertical", 0, 2, 3, 2),
    Sketcher.Constraint("Vertical", 6, 2, 9, 2),
    Sketcher.Constraint("Vertical", 12, 2, 15, 2),
    Sketcher.Constraint("Vertical", 18, 2, 21, 2),
    Sketcher.Constraint("Equal", 3, 7),
    Sketcher.Constraint("Equal", 9, 13),
    Sketcher.Constraint("Equal", 11, 17),
    Sketcher.Constraint("Equal", 15, 19),
    Sketcher.Constraint("DistanceX", 5, 1, 5, 2, 4.0),
    Sketcher.Constraint("DistanceY", 0, 2, 0, 1, 10.0),
    Sketcher.Constraint("DistanceY", 4, 2, 4, 1, 6.0),
    Sketcher.Constraint("DistanceY", 2, 2, 2, 1, 5.5),
    Sketcher.Constraint("DistanceX", -1, 1, 0, 2, 48.0),
    Sketcher.Constraint("DistanceX", -1, 1, 12, 2, 118.0),
    Sketcher.Constraint("DistanceX", 1, 2, 1, 1, 1.55),
])
pocket2 = body.newObject("PartDesign::Pocket", "Pocket001")
pocket2.Profile = sketch3
pocket2.Length = 10

sketch4 = body.newObject("Sketcher::SketchObject", "Sketch003")
sketch4.AttachmentSupport = (doc.getObject("XY_Plane"), [""])
sketch4.MapMode = "FlatFace"
sketch4.AttachmentOffset = App.Placement(Vector(0, 0, 10), App.Rotation())
sketch4.addGeometry([
    Part.LineSegment(Vector(180.831421, -25.234799, 0), Vector(175.574171, -33.741345, 0)),
    Part.LineSegment(Vector(175.574171, -33.741345, 0), Vector(174.255656, -32.926471, 0)),
    Part.LineSegment(Vector(174.255656, -32.926471, 0), Vector(171.364169, -37.605072, 0)),
    Part.LineSegment(Vector(171.364169, -37.605072, 0), Vector(172.682683, -38.419945, 0)),
    Part.LineSegment(Vector(172.682683, -38.419945, 0), Vector(169.528333, -43.523873, 0)),
    Part.LineSegment(Vector(169.528333, -43.523873, 0), Vector(172.930952, -45.626773, 0)),
    Part.LineSegment(Vector(172.930952, -45.626773, 0), Vector(176.085302, -40.522845, 0)),
    Part.LineSegment(Vector(176.085302, -40.522845, 0), Vector(177.403816, -41.337719, 0)),
    Part.LineSegment(Vector(177.403816, -41.337719, 0), Vector(180.295304, -36.659119, 0)),
    Part.LineSegment(Vector(180.295304, -36.659119, 0), Vector(178.976789, -35.844245, 0)),
    Part.LineSegment(Vector(178.976789, -35.844245, 0), Vector(184.234039, -27.337699, 0)),
    Part.LineSegment(Vector(184.234039, -27.337699, 0), Vector(180.831421, -25.234799, 0)),
    Part.LineSegment(Vector(285.765961, -90.086867, 0), Vector(280.508711, -98.593413, 0)),
    Part.LineSegment(Vector(280.508711, -98.593413, 0), Vector(279.190197, -97.778539, 0)),
    Part.LineSegment(Vector(279.190197, -97.778539, 0), Vector(276.298709, -102.457139, 0)),
    Part.LineSegment(Vector(276.298709, -102.457139, 0), Vector(277.617224, -103.272013, 0)),
    Part.LineSegment(Vector(277.617224, -103.272013, 0), Vector(274.462874, -108.375941, 0)),
    Part.LineSegment(Vector(274.462874, -108.375941, 0), Vector(277.865492, -110.478841, 0)),
    Part.LineSegment(Vector(277.865492, -110.478841, 0), Vector(281.019842, -105.374913, 0)),
    Part.LineSegment(Vector(281.019842, -105.374913, 0), Vector(282.338357, -106.189787, 0)),
    Part.LineSegment(Vector(282.338357, -106.189787, 0), Vector(285.229844, -101.511186, 0)),
    Part.LineSegment(Vector(285.229844, -101.511186, 0), Vector(283.91133, -100.696313, 0)),
    Part.LineSegment(Vector(283.91133, -100.696313, 0), Vector(289.168579, -92.189767, 0)),
    Part.LineSegment(Vector(289.168579, -92.189767, 0), Vector(285.765961, -90.086867, 0)),
], False)
sketch4.addConstraint([
    Sketcher.Constraint("Coincident", 0, 2, 1, 1),
    Sketcher.Constraint("Coincident", 1, 2, 2, 1),
    Sketcher.Constraint("Coincident", 2, 2, 3, 1),
    Sketcher.Constraint("Coincident", 3, 2, 4, 1),
    Sketcher.Constraint("Coincident", 4, 2, 5, 1),
    Sketcher.Constraint("Coincident", 5, 2, 6, 1),
    Sketcher.Constraint("Coincident", 6, 2, 7, 1),
    Sketcher.Constraint("Coincident", 7, 2, 8, 1),
    Sketcher.Constraint("Coincident", 8, 2, 9, 1),
    Sketcher.Constraint("Coincident", 9, 2, 10, 1),
    Sketcher.Constraint("Coincident", 10, 2, 11, 1),
    Sketcher.Constraint("Coincident", 11, 2, 0, 1),
    Sketcher.Constraint("Coincident", 12, 2, 13, 1),
    Sketcher.Constraint("Coincident", 13, 2, 14, 1),
    Sketcher.Constraint("Coincident", 14, 2, 15, 1),
    Sketcher.Constraint("Coincident", 15, 2, 16, 1),
    Sketcher.Constraint("Coincident", 16, 2, 17, 1),
    Sketcher.Constraint("Coincident", 17, 2, 18, 1),
    Sketcher.Constraint("Coincident", 18, 2, 19, 1),
    Sketcher.Constraint("Coincident", 19, 2, 20, 1),
    Sketcher.Constraint("Coincident", 20, 2, 21, 1),
    Sketcher.Constraint("Coincident", 21, 2, 22, 1),
    Sketcher.Constraint("Coincident", 22, 2, 23, 1),
    Sketcher.Constraint("Coincident", 23, 2, 12, 1),
    Sketcher.Constraint("Perpendicular", 0, 1),
    Sketcher.Constraint("Perpendicular", 1, 2),
    Sketcher.Constraint("Perpendicular", 2, 3),
    Sketcher.Constraint("Perpendicular", 3, 4),
    Sketcher.Constraint("Perpendicular", 4, 5),
    Sketcher.Constraint("Perpendicular", 5, 6),
    Sketcher.Constraint("Perpendicular", 6, 7),
    Sketcher.Constraint("Perpendicular", 7, 8),
    Sketcher.Constraint("Perpendicular", 8, 9),
    Sketcher.Constraint("Perpendicular", 9, 10),
    Sketcher.Constraint("Perpendicular", 10, 11),
    Sketcher.Constraint("Perpendicular", 11, 12),
    Sketcher.Constraint("Perpendicular", 12, 13),
    Sketcher.Constraint("Perpendicular", 13, 14),
    Sketcher.Constraint("Perpendicular", 14, 15),
    Sketcher.Constraint("Perpendicular", 15, 16),
    Sketcher.Constraint("Perpendicular", 16, 17),
    Sketcher.Constraint("Perpendicular", 17, 18),
    Sketcher.Constraint("Perpendicular", 18, 19),
    Sketcher.Constraint("Perpendicular", 19, 20),
    Sketcher.Constraint("Perpendicular", 20, 21),
    Sketcher.Constraint("Perpendicular", 21, 22),
    Sketcher.Constraint("Perpendicular", 22, 23),
    Sketcher.Constraint("Equal", 1, 3),
    Sketcher.Constraint("Equal", 4, 6),
    Sketcher.Constraint("Equal", 3, 7),
    Sketcher.Constraint("Equal", 2, 8),
    Sketcher.Constraint("Equal", 7, 9),
    Sketcher.Constraint("Equal", 10, 12),
    Sketcher.Constraint("Equal", 9, 13),
    Sketcher.Constraint("Equal", 8, 14),
    Sketcher.Constraint("Equal", 13, 15),
    Sketcher.Constraint("Equal", 6, 16),
    Sketcher.Constraint("Equal", 11, 17),
    Sketcher.Constraint("Equal", 16, 18),
    Sketcher.Constraint("Equal", 15, 19),
    Sketcher.Constraint("Equal", 14, 20),
    Sketcher.Constraint("Equal", 19, 21),
    Sketcher.Constraint("Distance", 0, 10.0),
    Sketcher.Constraint("Distance", 4, 6.0),
    Sketcher.Constraint("Distance", 5, 4.0),
    Sketcher.Constraint("Distance", 2, 5.5),
    Sketcher.Constraint("Distance", 1, 1.55),
    Sketcher.Constraint("DistanceX", -1, 1, 6, 2, 176.085302),
    Sketcher.Constraint("DistanceY", 10, 2, -1, 1, 27.337699),
    Sketcher.Constraint("DistanceY", 11, 2, -1, 1, 25.234799),
    Sketcher.Constraint("DistanceX", -1, 1, 12, 2, 280.508711),
    Sketcher.Constraint("DistanceY", 13, 2, -1, 1, 97.778539),
])
pocket3 = body.newObject("PartDesign::Pocket", "Pocket002")
pocket3.Profile = sketch4
pocket3.Length = 10

doc.recompute()
